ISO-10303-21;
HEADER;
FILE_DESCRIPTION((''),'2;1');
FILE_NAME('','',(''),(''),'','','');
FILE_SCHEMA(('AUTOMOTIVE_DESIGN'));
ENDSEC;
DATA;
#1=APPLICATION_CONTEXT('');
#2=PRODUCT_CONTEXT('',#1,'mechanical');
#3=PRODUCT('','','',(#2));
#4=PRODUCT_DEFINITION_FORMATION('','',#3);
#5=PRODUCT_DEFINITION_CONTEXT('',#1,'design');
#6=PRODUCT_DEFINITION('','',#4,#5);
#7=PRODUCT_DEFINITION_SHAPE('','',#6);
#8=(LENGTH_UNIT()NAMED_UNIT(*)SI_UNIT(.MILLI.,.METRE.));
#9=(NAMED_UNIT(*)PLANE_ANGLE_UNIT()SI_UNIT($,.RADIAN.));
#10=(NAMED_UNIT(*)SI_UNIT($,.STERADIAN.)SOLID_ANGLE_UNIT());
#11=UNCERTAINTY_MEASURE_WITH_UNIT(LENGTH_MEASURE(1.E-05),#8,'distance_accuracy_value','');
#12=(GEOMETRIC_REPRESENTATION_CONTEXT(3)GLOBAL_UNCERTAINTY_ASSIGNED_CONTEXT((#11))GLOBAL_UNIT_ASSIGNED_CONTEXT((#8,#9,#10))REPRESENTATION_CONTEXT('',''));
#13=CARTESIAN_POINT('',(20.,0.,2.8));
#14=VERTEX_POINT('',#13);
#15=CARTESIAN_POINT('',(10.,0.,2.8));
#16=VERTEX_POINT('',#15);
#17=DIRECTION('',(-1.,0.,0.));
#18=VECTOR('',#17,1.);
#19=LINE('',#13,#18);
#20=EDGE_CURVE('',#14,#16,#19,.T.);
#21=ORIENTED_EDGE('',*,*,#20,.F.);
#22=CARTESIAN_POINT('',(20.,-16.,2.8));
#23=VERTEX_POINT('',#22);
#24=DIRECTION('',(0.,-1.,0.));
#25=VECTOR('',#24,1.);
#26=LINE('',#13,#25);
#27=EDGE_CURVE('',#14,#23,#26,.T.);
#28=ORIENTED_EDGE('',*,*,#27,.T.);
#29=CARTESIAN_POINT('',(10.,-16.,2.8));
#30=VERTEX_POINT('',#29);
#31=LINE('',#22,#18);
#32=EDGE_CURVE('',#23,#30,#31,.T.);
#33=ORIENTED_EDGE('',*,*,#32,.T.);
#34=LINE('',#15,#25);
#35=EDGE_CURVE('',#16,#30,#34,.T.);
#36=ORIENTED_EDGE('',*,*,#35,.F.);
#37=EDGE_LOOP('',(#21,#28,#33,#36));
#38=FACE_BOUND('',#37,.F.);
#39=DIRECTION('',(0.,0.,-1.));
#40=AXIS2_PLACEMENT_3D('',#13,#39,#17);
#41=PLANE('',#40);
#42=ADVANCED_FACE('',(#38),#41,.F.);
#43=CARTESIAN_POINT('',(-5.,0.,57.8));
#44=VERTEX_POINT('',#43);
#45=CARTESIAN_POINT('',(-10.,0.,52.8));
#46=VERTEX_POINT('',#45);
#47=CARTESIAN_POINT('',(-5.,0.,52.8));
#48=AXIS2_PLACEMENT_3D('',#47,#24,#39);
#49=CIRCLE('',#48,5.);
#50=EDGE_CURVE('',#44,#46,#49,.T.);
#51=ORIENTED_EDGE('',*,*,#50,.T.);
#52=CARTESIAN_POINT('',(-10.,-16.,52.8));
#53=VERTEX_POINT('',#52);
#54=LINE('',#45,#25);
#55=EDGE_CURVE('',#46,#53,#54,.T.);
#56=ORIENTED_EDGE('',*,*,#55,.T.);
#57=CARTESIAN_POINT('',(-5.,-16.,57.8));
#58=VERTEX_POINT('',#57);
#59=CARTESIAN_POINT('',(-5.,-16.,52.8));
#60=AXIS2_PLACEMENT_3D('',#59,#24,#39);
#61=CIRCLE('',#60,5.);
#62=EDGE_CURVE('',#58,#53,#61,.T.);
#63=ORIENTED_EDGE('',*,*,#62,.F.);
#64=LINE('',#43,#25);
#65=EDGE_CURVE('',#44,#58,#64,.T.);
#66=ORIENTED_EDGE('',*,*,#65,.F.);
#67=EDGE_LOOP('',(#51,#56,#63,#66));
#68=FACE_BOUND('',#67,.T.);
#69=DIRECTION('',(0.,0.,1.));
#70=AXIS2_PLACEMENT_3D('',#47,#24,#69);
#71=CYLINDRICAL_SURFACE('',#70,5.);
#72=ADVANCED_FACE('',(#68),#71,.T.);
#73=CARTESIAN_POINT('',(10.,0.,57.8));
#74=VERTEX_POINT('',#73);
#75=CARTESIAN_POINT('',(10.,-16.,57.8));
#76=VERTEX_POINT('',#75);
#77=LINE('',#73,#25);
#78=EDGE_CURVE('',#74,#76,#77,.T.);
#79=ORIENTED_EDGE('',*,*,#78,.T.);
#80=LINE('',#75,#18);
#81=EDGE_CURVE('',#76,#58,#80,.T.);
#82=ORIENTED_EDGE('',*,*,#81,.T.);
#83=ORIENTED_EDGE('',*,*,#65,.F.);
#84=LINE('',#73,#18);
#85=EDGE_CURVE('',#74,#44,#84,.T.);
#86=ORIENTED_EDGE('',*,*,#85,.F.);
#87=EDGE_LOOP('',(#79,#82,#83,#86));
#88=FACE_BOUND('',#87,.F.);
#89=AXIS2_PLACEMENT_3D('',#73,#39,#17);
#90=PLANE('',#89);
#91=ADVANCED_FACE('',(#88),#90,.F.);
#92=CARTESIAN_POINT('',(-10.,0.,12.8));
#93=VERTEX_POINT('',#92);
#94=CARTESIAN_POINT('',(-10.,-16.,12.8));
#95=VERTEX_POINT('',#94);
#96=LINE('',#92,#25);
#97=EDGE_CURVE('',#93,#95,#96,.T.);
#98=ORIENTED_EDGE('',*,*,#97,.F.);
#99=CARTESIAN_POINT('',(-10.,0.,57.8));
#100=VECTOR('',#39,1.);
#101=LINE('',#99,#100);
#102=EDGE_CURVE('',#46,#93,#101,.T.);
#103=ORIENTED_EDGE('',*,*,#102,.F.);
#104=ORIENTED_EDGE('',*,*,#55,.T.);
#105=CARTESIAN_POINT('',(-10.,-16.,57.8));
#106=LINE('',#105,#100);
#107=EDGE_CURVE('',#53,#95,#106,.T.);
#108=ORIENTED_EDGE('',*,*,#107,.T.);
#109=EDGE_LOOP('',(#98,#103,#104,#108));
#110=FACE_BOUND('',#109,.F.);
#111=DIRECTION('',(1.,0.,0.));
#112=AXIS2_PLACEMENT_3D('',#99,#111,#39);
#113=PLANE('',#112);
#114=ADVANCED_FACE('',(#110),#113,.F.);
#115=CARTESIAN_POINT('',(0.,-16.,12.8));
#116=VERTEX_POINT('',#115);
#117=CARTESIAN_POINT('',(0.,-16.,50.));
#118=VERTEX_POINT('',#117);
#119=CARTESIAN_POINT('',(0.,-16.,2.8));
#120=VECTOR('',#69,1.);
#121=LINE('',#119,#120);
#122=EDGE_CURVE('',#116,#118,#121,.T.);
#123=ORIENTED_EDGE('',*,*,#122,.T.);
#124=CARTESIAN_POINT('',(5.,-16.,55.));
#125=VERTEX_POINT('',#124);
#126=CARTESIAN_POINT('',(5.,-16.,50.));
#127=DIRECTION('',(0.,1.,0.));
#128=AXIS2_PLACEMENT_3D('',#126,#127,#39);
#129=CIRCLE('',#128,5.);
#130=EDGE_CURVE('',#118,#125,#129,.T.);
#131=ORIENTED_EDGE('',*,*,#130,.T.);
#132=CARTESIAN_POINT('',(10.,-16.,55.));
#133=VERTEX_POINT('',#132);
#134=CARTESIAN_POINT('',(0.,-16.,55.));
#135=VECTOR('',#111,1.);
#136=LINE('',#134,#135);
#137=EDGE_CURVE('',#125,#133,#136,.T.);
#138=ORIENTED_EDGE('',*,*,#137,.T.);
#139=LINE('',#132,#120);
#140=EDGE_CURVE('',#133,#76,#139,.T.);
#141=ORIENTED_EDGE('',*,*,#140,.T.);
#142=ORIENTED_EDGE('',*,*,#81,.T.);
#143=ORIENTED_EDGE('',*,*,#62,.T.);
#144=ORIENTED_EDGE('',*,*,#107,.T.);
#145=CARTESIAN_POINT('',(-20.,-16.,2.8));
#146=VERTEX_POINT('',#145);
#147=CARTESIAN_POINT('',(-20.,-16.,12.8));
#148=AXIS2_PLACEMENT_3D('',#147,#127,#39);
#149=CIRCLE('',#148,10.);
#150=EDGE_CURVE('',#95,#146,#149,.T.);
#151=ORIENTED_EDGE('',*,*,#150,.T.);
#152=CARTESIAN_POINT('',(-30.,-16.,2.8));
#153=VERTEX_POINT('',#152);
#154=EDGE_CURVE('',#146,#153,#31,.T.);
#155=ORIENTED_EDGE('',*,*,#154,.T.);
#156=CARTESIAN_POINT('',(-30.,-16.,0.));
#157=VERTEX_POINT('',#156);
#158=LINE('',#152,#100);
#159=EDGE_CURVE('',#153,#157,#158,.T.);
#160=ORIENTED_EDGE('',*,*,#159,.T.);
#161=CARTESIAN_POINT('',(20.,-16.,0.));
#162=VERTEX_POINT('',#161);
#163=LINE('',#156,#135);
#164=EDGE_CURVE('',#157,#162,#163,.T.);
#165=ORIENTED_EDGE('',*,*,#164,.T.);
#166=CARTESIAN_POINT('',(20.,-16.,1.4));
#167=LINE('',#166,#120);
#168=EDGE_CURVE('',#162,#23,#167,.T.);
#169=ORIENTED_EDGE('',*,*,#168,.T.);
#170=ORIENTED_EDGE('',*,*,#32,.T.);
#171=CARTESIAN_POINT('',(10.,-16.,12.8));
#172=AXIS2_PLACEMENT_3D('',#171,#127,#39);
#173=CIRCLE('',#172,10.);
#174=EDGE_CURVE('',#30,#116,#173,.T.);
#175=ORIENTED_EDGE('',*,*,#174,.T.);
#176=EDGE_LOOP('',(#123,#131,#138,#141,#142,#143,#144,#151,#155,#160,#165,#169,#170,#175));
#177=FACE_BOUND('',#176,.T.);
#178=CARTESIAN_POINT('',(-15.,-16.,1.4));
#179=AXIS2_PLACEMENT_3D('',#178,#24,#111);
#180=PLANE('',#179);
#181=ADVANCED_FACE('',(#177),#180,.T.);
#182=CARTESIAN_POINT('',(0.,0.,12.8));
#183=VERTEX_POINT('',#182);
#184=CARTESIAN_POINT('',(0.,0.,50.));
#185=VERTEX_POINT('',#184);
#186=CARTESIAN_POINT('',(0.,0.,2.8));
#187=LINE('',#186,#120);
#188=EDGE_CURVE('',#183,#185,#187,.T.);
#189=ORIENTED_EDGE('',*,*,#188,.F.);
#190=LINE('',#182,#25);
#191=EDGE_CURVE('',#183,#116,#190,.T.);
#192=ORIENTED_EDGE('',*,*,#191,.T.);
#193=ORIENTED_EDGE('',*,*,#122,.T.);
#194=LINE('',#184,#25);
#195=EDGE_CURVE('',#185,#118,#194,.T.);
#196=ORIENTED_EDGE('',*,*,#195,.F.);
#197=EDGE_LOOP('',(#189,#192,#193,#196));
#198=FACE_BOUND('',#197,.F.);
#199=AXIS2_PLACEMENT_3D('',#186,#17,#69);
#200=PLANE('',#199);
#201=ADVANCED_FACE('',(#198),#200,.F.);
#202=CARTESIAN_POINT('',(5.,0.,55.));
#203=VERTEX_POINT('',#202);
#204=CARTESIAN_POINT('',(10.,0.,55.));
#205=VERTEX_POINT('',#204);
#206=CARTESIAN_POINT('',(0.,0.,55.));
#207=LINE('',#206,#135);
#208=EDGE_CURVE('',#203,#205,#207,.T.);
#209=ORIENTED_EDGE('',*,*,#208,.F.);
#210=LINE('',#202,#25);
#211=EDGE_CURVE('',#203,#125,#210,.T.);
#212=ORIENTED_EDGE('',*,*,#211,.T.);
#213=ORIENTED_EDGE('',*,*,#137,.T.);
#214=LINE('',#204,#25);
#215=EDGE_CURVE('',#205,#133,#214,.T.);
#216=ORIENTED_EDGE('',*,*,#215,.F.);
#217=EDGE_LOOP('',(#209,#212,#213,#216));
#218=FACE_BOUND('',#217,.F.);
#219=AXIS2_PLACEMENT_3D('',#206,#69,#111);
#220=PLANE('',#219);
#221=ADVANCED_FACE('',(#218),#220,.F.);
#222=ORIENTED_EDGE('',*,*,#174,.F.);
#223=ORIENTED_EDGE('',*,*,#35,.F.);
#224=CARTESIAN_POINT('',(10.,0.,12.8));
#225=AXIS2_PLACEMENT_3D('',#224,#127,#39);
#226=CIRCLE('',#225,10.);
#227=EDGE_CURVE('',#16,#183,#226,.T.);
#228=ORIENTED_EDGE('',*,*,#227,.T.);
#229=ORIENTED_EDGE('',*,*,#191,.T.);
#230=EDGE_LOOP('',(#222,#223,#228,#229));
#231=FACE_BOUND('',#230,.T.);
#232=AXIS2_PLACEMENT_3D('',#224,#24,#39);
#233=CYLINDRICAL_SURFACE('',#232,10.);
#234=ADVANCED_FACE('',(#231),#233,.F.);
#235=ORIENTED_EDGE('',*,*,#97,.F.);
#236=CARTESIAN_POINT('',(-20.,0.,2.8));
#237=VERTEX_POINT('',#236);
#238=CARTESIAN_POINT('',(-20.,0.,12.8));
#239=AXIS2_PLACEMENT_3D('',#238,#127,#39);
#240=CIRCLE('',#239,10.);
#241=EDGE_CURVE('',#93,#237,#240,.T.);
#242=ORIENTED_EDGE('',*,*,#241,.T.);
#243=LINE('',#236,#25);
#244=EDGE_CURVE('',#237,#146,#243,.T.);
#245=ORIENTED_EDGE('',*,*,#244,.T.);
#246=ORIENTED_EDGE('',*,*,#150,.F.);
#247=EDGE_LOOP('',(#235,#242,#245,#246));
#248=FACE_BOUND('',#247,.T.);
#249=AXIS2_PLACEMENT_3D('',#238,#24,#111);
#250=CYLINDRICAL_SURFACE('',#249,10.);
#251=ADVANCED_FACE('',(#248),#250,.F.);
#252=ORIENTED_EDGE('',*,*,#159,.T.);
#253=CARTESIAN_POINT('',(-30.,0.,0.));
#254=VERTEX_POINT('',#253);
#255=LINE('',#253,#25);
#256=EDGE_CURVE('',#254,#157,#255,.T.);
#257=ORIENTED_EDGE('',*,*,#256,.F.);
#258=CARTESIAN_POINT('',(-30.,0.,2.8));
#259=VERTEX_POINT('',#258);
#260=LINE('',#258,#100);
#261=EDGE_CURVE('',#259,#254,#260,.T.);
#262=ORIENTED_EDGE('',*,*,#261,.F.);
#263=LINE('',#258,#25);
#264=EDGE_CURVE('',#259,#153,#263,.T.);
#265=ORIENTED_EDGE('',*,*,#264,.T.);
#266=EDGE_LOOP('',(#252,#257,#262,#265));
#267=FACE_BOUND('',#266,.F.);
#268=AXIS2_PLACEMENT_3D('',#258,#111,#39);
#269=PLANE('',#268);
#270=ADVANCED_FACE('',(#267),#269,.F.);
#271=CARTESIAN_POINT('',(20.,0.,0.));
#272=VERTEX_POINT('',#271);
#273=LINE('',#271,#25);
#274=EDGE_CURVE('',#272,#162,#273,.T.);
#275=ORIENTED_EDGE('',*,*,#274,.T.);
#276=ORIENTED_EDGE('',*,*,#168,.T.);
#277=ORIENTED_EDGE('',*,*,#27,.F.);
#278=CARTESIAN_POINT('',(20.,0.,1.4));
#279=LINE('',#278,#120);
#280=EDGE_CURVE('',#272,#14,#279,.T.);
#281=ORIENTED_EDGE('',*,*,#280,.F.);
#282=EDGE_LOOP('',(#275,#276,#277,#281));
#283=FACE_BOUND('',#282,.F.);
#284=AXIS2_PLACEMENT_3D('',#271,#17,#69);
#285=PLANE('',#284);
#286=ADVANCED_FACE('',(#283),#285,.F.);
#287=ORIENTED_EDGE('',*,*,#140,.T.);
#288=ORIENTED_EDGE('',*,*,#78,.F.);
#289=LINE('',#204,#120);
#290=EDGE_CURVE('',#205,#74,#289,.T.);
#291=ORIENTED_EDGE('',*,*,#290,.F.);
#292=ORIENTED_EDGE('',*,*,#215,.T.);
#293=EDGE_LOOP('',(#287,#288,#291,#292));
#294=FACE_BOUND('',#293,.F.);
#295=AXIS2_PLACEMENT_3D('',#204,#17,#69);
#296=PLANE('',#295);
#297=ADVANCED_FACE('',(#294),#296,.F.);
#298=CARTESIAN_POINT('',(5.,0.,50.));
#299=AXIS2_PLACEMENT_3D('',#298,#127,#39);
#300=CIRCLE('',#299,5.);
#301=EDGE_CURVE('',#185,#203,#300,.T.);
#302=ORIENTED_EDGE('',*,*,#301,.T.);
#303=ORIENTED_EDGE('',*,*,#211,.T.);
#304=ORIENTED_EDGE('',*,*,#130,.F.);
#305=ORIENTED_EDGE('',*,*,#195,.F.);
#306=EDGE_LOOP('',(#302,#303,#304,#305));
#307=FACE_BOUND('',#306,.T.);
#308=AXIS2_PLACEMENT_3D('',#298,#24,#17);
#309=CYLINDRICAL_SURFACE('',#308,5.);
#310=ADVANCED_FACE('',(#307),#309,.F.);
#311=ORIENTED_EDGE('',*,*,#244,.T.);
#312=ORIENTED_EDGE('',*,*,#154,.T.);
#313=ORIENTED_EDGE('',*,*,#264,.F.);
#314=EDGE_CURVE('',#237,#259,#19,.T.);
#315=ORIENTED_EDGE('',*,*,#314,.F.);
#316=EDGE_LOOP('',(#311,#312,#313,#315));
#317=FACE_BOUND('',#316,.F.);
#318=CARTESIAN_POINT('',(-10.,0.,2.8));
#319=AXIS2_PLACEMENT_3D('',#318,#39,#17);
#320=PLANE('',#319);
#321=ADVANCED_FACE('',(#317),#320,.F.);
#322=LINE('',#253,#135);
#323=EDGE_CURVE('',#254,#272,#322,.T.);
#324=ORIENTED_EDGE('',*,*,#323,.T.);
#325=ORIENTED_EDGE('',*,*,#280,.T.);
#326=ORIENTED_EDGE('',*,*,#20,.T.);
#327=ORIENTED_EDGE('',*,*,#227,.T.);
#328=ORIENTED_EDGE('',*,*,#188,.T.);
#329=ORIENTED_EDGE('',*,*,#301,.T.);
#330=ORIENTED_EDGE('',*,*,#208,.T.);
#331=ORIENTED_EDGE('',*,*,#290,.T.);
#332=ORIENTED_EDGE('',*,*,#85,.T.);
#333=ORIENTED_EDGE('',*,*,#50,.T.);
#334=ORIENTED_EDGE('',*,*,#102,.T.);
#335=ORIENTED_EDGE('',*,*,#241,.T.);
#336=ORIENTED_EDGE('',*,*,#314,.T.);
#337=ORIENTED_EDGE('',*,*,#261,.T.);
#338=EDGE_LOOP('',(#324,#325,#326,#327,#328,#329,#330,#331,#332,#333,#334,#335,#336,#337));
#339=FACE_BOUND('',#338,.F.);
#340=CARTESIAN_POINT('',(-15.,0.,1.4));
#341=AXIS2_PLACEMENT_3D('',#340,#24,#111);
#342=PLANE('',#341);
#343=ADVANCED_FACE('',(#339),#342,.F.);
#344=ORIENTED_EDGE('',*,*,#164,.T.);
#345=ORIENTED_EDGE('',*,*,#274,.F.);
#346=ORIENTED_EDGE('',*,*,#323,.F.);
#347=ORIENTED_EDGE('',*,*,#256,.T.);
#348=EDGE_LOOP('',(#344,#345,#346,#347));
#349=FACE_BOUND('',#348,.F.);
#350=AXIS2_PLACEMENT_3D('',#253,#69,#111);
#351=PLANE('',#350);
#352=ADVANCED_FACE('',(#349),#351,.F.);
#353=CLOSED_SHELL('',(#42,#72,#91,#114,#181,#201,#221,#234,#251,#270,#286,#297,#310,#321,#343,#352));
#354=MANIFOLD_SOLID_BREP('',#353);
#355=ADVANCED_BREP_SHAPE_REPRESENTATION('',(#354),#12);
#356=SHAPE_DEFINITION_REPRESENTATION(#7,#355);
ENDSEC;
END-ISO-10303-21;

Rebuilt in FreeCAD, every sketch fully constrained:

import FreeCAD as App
import Part
import Sketcher

V = App.Vector
Q = App.Units.Quantity


def edges_at(feature, points):
    """Names of the edges that pass closest to the given points."""
    edges = feature.Shape.Edges
    near = lambda p: min(range(len(edges)), key=lambda i: edges[i].distToShape(Part.Vertex(*p))[0])
    return sorted({f"Edge{near(p) + 1}" for p in points})


def add_polygon(sketch, points):
    """Adds a closed chain of lines whose ends are joined by coincident constraints."""
    first, n = sketch.GeometryCount, len(points)
    for a, b in zip(points, points[1:] + points[:1]):
        sketch.addGeometry(Part.LineSegment(App.Vector(*a, 0), App.Vector(*b, 0)), False)
    for i in range(n):
        sketch.addConstraint(Sketcher.Constraint("Coincident", first + i, 2, first + (i + 1) % n, 1))

doc = App.newDocument("Part")
body = doc.addObject("PartDesign::Body", "Body")

sketch1 = body.newObject("Sketcher::SketchObject", "Sketch")
sketch1.AttachmentSupport = (doc.getObject("XZ_Plane"), [""])
sketch1.MapMode = "FlatFace"
add_polygon(sketch1, [(-30, 0), (20, 0), (20, 2.8), (0, 2.8), (0, 55), (10, 55), (10, 57.8), (-10, 57.8), (-10, 2.8), (-30, 2.8)])
sketch1.addConstraint(Sketcher.Constraint("Horizontal", 0))
sketch1.addConstraint(Sketcher.Constraint("Vertical", 1))
sketch1.addConstraint(Sketcher.Constraint("Horizontal", 2))
sketch1.addConstraint(Sketcher.Constraint("Vertical", 3))
sketch1.addConstraint(Sketcher.Constraint("Horizontal", 4))
sketch1.addConstraint(Sketcher.Constraint("Vertical", 5))
sketch1.addConstraint(Sketcher.Constraint("Horizontal", 6))
sketch1.addConstraint(Sketcher.Constraint("Vertical", 7))
sketch1.addConstraint(Sketcher.Constraint("Horizontal", 8))
sketch1.addConstraint(Sketcher.Constraint("Vertical", 9))
sketch1.addConstraint(Sketcher.Constraint("PointOnObject", 0, 2, -1))
sketch1.addConstraint(Sketcher.Constraint("PointOnObject", 2, 2, -2))
sketch1.addConstraint(Sketcher.Constraint("Horizontal", 2, 2, 7, 2))
sketch1.addConstraint(Sketcher.Constraint("Equal", 2, 6))
sketch1.addConstraint(Sketcher.Constraint("Equal", 6, 8))
sketch1.addConstraint(Sketcher.Constraint("Equal", 1, 5))
sketch1.addConstraint(Sketcher.Constraint("DistanceX", 0, 1, 0, 2, Q("50 mm")))
sketch1.addConstraint(Sketcher.Constraint("DistanceX", 2, 2, 2, 1, Q("20 mm")))
sketch1.addConstraint(Sketcher.Constraint("DistanceY", 7, 2, 7, 1, Q("55 mm")))
sketch1.addConstraint(Sketcher.Constraint("DistanceY", 1, 1, 1, 2, Q("2.8 mm")))
pad1 = body.newObject("PartDesign::Pad", "Pad")
pad1.Profile = sketch1
pad1.Length = 16
doc.recompute()

fillet = body.newObject("PartDesign::Fillet", "Fillet")
fillet.Base = (pad1, edges_at(pad1, [(-10, -8, 2.8), (0, -8, 2.8)]))
fillet.Radius = 10
doc.recompute()

fillet2 = body.newObject("PartDesign::Fillet", "Fillet001")
fillet2.Base = (fillet, edges_at(fillet, [(-10, -8, 57.8), (0, -8, 55)]))
fillet2.Radius = 5

doc.recompute()
